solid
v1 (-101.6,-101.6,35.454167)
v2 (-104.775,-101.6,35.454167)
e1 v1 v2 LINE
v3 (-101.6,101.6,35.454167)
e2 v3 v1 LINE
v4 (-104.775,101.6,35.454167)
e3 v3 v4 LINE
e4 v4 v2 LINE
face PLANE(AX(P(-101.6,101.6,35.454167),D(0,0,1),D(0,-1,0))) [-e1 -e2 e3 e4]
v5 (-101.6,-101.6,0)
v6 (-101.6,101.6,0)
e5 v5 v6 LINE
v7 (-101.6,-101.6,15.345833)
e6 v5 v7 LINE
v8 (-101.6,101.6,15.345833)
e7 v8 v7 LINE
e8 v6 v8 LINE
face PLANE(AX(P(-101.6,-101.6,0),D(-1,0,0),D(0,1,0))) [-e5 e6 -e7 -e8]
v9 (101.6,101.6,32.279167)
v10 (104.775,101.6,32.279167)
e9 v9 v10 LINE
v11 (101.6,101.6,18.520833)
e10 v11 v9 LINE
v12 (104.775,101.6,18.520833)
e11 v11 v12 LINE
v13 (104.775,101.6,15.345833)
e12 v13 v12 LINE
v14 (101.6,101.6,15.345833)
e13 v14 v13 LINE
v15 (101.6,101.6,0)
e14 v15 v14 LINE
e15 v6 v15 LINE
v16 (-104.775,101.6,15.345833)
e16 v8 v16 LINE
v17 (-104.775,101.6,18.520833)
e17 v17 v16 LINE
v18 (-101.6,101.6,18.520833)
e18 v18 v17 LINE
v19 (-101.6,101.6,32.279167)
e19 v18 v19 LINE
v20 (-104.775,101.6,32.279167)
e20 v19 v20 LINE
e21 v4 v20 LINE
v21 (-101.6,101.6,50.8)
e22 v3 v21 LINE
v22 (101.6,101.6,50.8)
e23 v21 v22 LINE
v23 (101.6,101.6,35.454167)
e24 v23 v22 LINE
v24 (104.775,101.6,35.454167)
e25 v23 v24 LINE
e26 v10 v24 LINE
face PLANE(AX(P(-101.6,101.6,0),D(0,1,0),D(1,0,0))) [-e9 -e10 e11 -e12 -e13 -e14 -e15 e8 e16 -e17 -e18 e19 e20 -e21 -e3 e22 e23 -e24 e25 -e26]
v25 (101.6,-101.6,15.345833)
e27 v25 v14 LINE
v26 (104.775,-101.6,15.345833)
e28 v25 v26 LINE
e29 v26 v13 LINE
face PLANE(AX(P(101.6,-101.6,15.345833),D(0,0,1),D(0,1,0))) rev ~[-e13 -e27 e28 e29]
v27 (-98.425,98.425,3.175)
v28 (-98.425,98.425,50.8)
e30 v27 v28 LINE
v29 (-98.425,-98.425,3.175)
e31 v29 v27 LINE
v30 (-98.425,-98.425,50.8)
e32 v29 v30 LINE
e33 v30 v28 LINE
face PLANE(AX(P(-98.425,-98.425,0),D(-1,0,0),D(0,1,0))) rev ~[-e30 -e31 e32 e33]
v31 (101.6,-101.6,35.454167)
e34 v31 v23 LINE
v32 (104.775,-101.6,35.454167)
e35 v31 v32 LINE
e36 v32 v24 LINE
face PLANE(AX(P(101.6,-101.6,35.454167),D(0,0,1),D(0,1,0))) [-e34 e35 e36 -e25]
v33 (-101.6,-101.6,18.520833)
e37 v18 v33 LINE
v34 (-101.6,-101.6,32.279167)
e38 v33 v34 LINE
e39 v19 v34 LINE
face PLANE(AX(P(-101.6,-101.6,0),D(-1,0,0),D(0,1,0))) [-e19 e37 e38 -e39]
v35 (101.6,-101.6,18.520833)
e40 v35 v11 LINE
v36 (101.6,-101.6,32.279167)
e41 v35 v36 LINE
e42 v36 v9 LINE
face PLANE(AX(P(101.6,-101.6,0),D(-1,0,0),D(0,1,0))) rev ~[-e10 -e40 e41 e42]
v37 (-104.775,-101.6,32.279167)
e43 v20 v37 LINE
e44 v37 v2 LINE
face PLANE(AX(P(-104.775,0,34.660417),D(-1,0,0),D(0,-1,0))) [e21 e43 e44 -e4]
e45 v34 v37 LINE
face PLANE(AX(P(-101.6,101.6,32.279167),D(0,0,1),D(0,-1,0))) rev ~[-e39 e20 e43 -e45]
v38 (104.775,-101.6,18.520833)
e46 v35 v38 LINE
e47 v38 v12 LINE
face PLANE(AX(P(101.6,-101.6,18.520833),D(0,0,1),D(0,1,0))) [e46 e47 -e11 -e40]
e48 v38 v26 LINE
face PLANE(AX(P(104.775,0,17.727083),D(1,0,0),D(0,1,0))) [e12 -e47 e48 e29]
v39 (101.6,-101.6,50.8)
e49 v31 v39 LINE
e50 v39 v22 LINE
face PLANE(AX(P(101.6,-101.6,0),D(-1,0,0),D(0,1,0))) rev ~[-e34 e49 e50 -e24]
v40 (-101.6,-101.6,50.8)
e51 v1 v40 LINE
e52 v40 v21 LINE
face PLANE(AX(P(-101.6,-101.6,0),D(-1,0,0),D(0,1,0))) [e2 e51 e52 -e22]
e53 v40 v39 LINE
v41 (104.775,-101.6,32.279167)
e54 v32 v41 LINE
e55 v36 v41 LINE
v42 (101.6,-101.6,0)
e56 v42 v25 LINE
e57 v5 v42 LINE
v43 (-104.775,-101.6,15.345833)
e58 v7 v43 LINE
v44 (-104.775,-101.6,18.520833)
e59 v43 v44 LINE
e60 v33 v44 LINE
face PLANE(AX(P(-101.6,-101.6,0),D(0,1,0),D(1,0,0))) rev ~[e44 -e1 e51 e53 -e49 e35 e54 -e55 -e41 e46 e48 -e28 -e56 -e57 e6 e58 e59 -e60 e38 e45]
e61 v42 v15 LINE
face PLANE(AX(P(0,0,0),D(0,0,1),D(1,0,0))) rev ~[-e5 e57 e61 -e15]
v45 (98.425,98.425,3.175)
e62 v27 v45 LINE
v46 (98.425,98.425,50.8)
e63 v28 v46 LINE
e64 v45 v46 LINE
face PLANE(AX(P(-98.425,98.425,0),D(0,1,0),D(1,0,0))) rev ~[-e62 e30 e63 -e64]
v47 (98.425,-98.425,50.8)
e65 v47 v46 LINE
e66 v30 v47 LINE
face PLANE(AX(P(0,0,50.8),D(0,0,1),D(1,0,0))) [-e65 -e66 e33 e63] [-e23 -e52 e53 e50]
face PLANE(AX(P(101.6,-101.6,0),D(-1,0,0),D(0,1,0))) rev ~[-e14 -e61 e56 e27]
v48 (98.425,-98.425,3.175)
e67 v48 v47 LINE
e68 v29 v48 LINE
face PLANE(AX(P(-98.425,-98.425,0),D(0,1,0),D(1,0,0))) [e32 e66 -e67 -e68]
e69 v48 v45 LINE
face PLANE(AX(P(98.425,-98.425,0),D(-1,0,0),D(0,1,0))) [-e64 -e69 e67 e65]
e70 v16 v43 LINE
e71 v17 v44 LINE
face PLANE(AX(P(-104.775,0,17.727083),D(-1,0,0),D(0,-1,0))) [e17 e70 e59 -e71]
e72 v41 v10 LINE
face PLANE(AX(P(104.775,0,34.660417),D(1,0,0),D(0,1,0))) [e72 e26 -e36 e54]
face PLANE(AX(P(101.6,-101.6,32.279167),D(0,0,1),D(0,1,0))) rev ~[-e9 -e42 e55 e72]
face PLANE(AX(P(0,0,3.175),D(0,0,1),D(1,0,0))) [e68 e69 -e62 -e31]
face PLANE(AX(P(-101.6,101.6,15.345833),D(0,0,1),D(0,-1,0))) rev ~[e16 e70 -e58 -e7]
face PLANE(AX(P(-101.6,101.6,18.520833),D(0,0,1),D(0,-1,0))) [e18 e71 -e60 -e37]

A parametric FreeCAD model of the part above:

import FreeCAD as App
import Part
import Sketcher
from FreeCAD import Vector
Q = App.Units.Quantity

doc = App.newDocument("Part")
body = doc.addObject("PartDesign::Body", "Body")

# Sketch on XY plane
sketch1 = doc.addObject("Sketcher::SketchObject", "Sketch")
body.addObject(sketch1)
sketch1.AttachmentSupport = (doc.XY_Plane, [""])
sketch1.MapMode = "FlatFace"
sketch1.addGeometry(Part.LineSegment(Vector(-102, 102, 0), Vector(-102, -102, 0)), False)
sketch1.addGeometry(Part.LineSegment(Vector(-102, -102, 0), Vector(102, -102, 0)), False)
sketch1.addGeometry(Part.LineSegment(Vector(102, -102, 0), Vector(102, 102, 0)), False)
sketch1.addGeometry(Part.LineSegment(Vector(102, 102, 0), Vector(-102, 102, 0)), False)
sketch1.addGeometry(Part.LineSegment(Vector(98, -98, 0), Vector(-98, -98, 0)), False)
sketch1.addGeometry(Part.LineSegment(Vector(-98, -98, 0), Vector(-98, 98, 0)), False)
sketch1.addGeometry(Part.LineSegment(Vector(-98, 98, 0), Vector(98, 98, 0)), False)
sketch1.addGeometry(Part.LineSegment(Vector(98, 98, 0), Vector(98, -98, 0)), False)
sketch1.addConstraint(Sketcher.Constraint("Coincident", 0, 2, 1, 1))
sketch1.addConstraint(Sketcher.Constraint("Coincident", 1, 2, 2, 1))
sketch1.addConstraint(Sketcher.Constraint("Coincident", 2, 2, 3, 1))
sketch1.addConstraint(Sketcher.Constraint("Coincident", 3, 2, 0, 1))
sketch1.addConstraint(Sketcher.Constraint("Coincident", 4, 2, 5, 1))
sketch1.addConstraint(Sketcher.Constraint("Coincident", 5, 2, 6, 1))
sketch1.addConstraint(Sketcher.Constraint("Coincident", 6, 2, 7, 1))
sketch1.addConstraint(Sketcher.Constraint("Coincident", 7, 2, 4, 1))
sketch1.addConstraint(Sketcher.Constraint("Vertical", 0))
sketch1.addConstraint(Sketcher.Constraint("Horizontal", 1))
sketch1.addConstraint(Sketcher.Constraint("Vertical", 2))
sketch1.addConstraint(Sketcher.Constraint("Horizontal", 3))
sketch1.addConstraint(Sketcher.Constraint("Horizontal", 4))
sketch1.addConstraint(Sketcher.Constraint("Vertical", 5))
sketch1.addConstraint(Sketcher.Constraint("Horizontal", 6))
sketch1.addConstraint(Sketcher.Constraint("Vertical", 7))
sketch1.addConstraint(Sketcher.Constraint("Symmetric", 0, 2, 2, 2, -1, 1))
sketch1.addConstraint(Sketcher.Constraint("Symmetric", 4, 2, 6, 2, -1, 1))
sketch1.addConstraint(Sketcher.Constraint("Equal", 3, 0))
sketch1.addConstraint(Sketcher.Constraint("Equal", 6, 5))
sketch1.addConstraint(Sketcher.Constraint("DistanceX", 1, 1, 1, 2, Q("8 in")))
sketch1.addConstraint(Sketcher.Constraint("DistanceX", 4, 2, 4, 1, Q("7.75 in")))
pad1 = doc.addObject("PartDesign::Pad", "Pad")
body.addObject(pad1)
pad1.Profile = sketch1
pad1.Length = Q("2 in")

# Sketch on XY plane
sketch2 = doc.addObject("Sketcher::SketchObject", "Sketch001")
body.addObject(sketch2)
sketch2.AttachmentSupport = (doc.XY_Plane, [""])
sketch2.MapMode = "FlatFace"
sketch2.addGeometry(Part.LineSegment(Vector(-98, 98, 0), Vector(-98, -98, 0)), False)
sketch2.addGeometry(Part.LineSegment(Vector(-98, -98, 0), Vector(98, -98, 0)), False)
sketch2.addGeometry(Part.LineSegment(Vector(98, -98, 0), Vector(98, 98, 0)), False)
sketch2.addGeometry(Part.LineSegment(Vector(98, 98, 0), Vector(-98, 98, 0)), False)
sketch2.addConstraint(Sketcher.Constraint("Coincident", 0, 2, 1, 1))
sketch2.addConstraint(Sketcher.Constraint("Coincident", 1, 2, 2, 1))
sketch2.addConstraint(Sketcher.Constraint("Coincident", 2, 2, 3, 1))
sketch2.addConstraint(Sketcher.Constraint("Coincident", 3, 2, 0, 1))
sketch2.addConstraint(Sketcher.Constraint("Vertical", 0))
sketch2.addConstraint(Sketcher.Constraint("Horizontal", 1))
sketch2.addConstraint(Sketcher.Constraint("Vertical", 2))
sketch2.addConstraint(Sketcher.Constraint("Horizontal", 3))
sketch2.addConstraint(Sketcher.Constraint("Symmetric", 0, 2, 2, 2, -1, 1))
sketch2.addConstraint(Sketcher.Constraint("Equal", 3, 0))
sketch2.addConstraint(Sketcher.Constraint("DistanceX", 1, 1, 1, 2, Q("7.75 in")))
pad2 = doc.addObject("PartDesign::Pad", "Pad001")
body.addObject(pad2)
pad2.Profile = sketch2
pad2.Length = Q("0.125 in")

# Sketch on YZ plane
sketch3 = doc.addObject("Sketcher::SketchObject", "Sketch002")
body.addObject(sketch3)
sketch3.AttachmentSupport = (doc.YZ_Plane, [""])
sketch3.MapMode = "FlatFace"
sketch3.AttachmentOffset = App.Placement(Vector(0, 0, -4 * 25.4), App.Rotation())
sketch3.addGeometry(Part.LineSegment(Vector(101.6, 35.5, 0), Vector(101.6, 32.3, 0)), False)
sketch3.addGeometry(Part.LineSegment(Vector(101.6, 32.3, 0), Vector(-101.6, 32.3, 0)), False)
sketch3.addGeometry(Part.LineSegment(Vector(-101.6, 32.3, 0), Vector(-101.6, 35.5, 0)), False)
sketch3.addGeometry(Part.LineSegment(Vector(-101.6, 35.5, 0), Vector(101.6, 35.5, 0)), False)
sketch3.addGeometry(Part.LineSegment(Vector(101.6, 18.5, 0), Vector(101.6, 15.3, 0)), False)
sketch3.addGeometry(Part.LineSegment(Vector(101.6, 15.3, 0), Vector(-101.6, 15.3, 0)), False)
sketch3.addGeometry(Part.LineSegment(Vector(-101.6, 15.3, 0), Vector(-101.6, 18.5, 0)), False)
sketch3.addGeometry(Part.LineSegment(Vector(-101.6, 18.5, 0), Vector(101.6, 18.5, 0)), False)
sketch3.addConstraint(Sketcher.Constraint("Coincident", 0, 2, 1, 1))
sketch3.addConstraint(Sketcher.Constraint("Coincident", 1, 2, 2, 1))
sketch3.addConstraint(Sketcher.Constraint("Coincident", 2, 2, 3, 1))
sketch3.addConstraint(Sketcher.Constraint("Coincident", 3, 2, 0, 1))
sketch3.addConstraint(Sketcher.Constraint("Coincident", 4, 2, 5, 1))
sketch3.addConstraint(Sketcher.Constraint("Coincident", 5, 2, 6, 1))
sketch3.addConstraint(Sketcher.Constraint("Coincident", 6, 2, 7, 1))
sketch3.addConstraint(Sketcher.Constraint("Coincident", 7, 2, 4, 1))
sketch3.addConstraint(Sketcher.Constraint("Vertical", 0))
sketch3.addConstraint(Sketcher.Constraint("Horizontal", 1))
sketch3.addConstraint(Sketcher.Constraint("Vertical", 2))
sketch3.addConstraint(Sketcher.Constraint("Horizontal", 3))
sketch3.addConstraint(Sketcher.Constraint("Vertical", 4))
sketch3.addConstraint(Sketcher.Constraint("Horizontal", 5))
sketch3.addConstraint(Sketcher.Constraint("Vertical", 6))
sketch3.addConstraint(Sketcher.Constraint("Horizontal", 7))
sketch3.addConstraint(Sketcher.Constraint("Vertical", 3, 2, 4, 2))
sketch3.addConstraint(Sketcher.Constraint("Vertical", 2, 2, 5, 2))
sketch3.addConstraint(Sketcher.Constraint("Equal", 2, 4))
sketch3.addConstraint(Sketcher.Constraint("DistanceX", 1, 2, 1, 1, Q("8 in")))
sketch3.addConstraint(Sketcher.Constraint("DistanceX", -1, 1, 0, 2, Q("4 in")))
sketch3.addConstraint(Sketcher.Constraint("DistanceY", 0, 2, 0, 1, Q("0.125 in")))
sketch3.addConstraint(Sketcher.Constraint("DistanceY", -1, 1, 0, 2, 32.279167))
sketch3.addConstraint(Sketcher.Constraint("DistanceY", -1, 1, 4, 2, 15.345833))
pad3 = doc.addObject("PartDesign::Pad", "Pad002")
body.addObject(pad3)
pad3.Profile = sketch3
pad3.Length = Q("0.125 in")
pad3.Reversed = True

# Sketch on YZ plane
sketch4 = doc.addObject("Sketcher::SketchObject", "Sketch003")
body.addObject(sketch4)
sketch4.AttachmentSupport = (doc.YZ_Plane, [""])
sketch4.MapMode = "FlatFace"
sketch4.AttachmentOffset = App.Placement(Vector(0, 0, 4 * 25.4), App.Rotation())
sketch4.addGeometry(Part.LineSegment(Vector(-101.6, 35.5, 0), Vector(-101.6, 32.3, 0)), False)
sketch4.addGeometry(Part.LineSegment(Vector(-101.6, 32.3, 0), Vector(101.6, 32.3, 0)), False)
sketch4.addGeometry(Part.LineSegment(Vector(101.6, 32.3, 0), Vector(101.6, 35.5, 0)), False)
sketch4.addGeometry(Part.LineSegment(Vector(101.6, 35.5, 0), Vector(-101.6, 35.5, 0)), False)
sketch4.addGeometry(Part.LineSegment(Vector(-101.6, 18.5, 0), Vector(-101.6, 15.3, 0)), False)
sketch4.addGeometry(Part.LineSegment(Vector(-101.6, 15.3, 0), Vector(101.6, 15.3, 0)), False)
sketch4.addGeometry(Part.LineSegment(Vector(101.6, 15.3, 0), Vector(101.6, 18.5, 0)), False)
sketch4.addGeometry(Part.LineSegment(Vector(101.6, 18.5, 0), Vector(-101.6, 18.5, 0)), False)
sketch4.addConstraint(Sketcher.Constraint("Coincident", 0, 2, 1, 1))
sketch4.addConstraint(Sketcher.Constraint("Coincident", 1, 2, 2, 1))
sketch4.addConstraint(Sketcher.Constraint("Coincident", 2, 2, 3, 1))
sketch4.addConstraint(Sketcher.Constraint("Coincident", 3, 2, 0, 1))
sketch4.addConstraint(Sketcher.Constraint("Coincident", 4, 2, 5, 1))
sketch4.addConstraint(Sketcher.Constraint("Coincident", 5, 2, 6, 1))
sketch4.addConstraint(Sketcher.Constraint("Coincident", 6, 2, 7, 1))
sketch4.addConstraint(Sketcher.Constraint("Coincident", 7, 2, 4, 1))
sketch4.addConstraint(Sketcher.Constraint("Vertical", 0))
sketch4.addConstraint(Sketcher.Constraint("Horizontal", 1))
sketch4.addConstraint(Sketcher.Constraint("Vertical", 2))
sketch4.addConstraint(Sketcher.Constraint("Horizontal", 3))
sketch4.addConstraint(Sketcher.Constraint("Vertical", 4))
sketch4.addConstraint(Sketcher.Constraint("Horizontal", 5))
sketch4.addConstraint(Sketcher.Constraint("Vertical", 6))
sketch4.addConstraint(Sketcher.Constraint("Horizontal", 7))
sketch4.addConstraint(Sketcher.Constraint("Vertical", 3, 2, 4, 2))
sketch4.addConstraint(Sketcher.Constraint("Vertical", 2, 2, 5, 2))
sketch4.addConstraint(Sketcher.Constraint("Equal", 2, 4))
sketch4.addConstraint(Sketcher.Constraint("DistanceX", 1, 1, 1, 2, Q("8 in")))
sketch4.addConstraint(Sketcher.Constraint("DistanceX", 0, 2, -1, 1, Q("4 in")))
sketch4.addConstraint(Sketcher.Constraint("DistanceY", 0, 2, 0, 1, Q("0.125 in")))
sketch4.addConstraint(Sketcher.Constraint("DistanceY", -1, 1, 0, 2, 32.279167))
sketch4.addConstraint(Sketcher.Constraint("DistanceY", -1, 1, 4, 2, 15.345833))
pad4 = doc.addObject("PartDesign::Pad", "Pad003")
body.addObject(pad4)
pad4.Profile = sketch4
pad4.Length = Q("0.125 in")

doc.recompute()
